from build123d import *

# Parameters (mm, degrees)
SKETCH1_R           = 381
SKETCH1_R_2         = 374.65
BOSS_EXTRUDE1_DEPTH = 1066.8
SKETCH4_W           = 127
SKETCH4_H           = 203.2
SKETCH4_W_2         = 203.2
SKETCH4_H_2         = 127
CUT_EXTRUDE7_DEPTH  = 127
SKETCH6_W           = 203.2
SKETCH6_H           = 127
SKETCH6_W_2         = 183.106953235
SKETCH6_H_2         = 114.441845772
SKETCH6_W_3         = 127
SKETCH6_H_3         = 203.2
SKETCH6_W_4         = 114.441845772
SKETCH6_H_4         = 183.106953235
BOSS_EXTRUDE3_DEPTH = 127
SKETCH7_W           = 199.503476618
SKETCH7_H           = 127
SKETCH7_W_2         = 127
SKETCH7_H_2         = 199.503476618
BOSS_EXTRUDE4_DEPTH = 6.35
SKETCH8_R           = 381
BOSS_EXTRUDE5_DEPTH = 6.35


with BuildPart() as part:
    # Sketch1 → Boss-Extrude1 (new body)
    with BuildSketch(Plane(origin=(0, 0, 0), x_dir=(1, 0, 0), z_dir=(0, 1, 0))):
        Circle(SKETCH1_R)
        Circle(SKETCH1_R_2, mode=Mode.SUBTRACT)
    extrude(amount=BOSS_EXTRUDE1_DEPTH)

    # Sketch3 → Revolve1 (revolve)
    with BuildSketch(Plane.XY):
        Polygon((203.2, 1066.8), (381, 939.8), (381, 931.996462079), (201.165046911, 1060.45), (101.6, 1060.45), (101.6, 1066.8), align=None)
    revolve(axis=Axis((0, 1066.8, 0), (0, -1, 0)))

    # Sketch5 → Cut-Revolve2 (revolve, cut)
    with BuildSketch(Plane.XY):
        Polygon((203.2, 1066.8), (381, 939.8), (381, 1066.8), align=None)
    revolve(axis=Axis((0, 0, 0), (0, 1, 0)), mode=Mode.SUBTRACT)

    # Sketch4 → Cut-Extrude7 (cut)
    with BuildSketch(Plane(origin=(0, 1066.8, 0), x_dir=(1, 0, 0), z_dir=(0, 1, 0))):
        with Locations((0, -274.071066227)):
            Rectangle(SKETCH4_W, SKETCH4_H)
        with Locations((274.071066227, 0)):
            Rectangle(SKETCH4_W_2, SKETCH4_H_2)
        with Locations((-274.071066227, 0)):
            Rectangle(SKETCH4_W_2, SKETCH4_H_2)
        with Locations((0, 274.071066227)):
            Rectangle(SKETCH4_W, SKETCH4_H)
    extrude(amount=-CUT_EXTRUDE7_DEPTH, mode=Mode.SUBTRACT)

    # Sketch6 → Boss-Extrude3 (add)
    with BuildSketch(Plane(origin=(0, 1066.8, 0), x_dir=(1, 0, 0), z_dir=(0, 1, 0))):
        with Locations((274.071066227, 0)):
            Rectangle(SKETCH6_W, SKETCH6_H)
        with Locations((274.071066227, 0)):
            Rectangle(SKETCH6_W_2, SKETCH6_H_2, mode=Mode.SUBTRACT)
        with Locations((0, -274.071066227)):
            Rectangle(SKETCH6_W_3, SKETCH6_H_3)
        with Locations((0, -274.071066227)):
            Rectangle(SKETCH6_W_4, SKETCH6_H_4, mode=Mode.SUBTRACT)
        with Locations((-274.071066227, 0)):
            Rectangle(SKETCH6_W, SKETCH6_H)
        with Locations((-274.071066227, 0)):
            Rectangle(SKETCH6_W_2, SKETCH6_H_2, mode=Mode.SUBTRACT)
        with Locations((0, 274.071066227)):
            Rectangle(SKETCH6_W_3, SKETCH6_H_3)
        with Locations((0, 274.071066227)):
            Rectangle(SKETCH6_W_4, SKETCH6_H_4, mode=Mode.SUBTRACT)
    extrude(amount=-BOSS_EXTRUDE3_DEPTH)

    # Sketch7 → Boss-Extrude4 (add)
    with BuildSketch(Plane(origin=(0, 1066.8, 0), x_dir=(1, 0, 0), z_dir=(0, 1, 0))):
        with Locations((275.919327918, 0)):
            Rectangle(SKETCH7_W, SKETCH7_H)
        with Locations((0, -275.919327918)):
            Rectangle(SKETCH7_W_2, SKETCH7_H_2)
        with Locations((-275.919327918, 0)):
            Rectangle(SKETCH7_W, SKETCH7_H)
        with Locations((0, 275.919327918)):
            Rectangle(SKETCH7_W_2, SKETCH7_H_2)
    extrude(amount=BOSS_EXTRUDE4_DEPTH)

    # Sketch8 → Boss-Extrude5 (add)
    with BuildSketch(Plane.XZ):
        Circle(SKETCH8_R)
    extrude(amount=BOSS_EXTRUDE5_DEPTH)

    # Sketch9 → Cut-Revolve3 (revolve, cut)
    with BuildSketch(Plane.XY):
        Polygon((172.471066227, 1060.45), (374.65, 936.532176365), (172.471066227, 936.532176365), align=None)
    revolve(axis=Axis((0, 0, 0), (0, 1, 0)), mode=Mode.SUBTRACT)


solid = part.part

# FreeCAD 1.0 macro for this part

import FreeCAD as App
import Part
import Sketcher

V = App.Vector
Q = App.Units.Quantity

doc = App.newDocument("Part")
body = doc.addObject("PartDesign::Body", "Body")

# Sketch on XZ plane
sketch1 = body.newObject("Sketcher::SketchObject", "Sketch")
sketch1.AttachmentSupport = (doc.getObject("XZ_Plane"), [""])
sketch1.MapMode = "FlatFace"
sketch1.addGeometry([
    Part.Circle(V(0, 0, 0), V(0, 0, 1), 381),
    Part.Circle(V(0, 0, 0), V(0, 0, 1), 374.65),
], False)
sketch1.addConstraint([
    Sketcher.Constraint("Coincident", 0, 3, -1, 1),
    Sketcher.Constraint("Coincident", 1, 3, -1, 1),
    Sketcher.Constraint("Diameter", 0, Q("30 in")),
    Sketcher.Constraint("Diameter", 1, Q("29.5 in")),
])
pad1 = body.newObject("PartDesign::Pad", "Pad")
pad1.Profile = sketch1
pad1.Length = Q("42 in")
pad1.Reversed = True

# Sketch on XY plane
sketch2 = body.newObject("Sketcher::SketchObject", "Sketch001")
sketch2.AttachmentSupport = (doc.getObject("XY_Plane"), [""])
sketch2.MapMode = "FlatFace"
sketch2.addGeometry([
    Part.LineSegment(V(381, 939.8, 0), V(203.2, 1066.8, 0)),  # 0
    Part.LineSegment(V(203.2, 1066.8, 0), V(101.6, 1066.8, 0)),  # 1
    Part.LineSegment(V(101.6, 1066.8, 0), V(101.6, 1060.45, 0)),  # 2
    Part.LineSegment(V(101.6, 1060.45, 0), V(201.165047, 1060.45, 0)),  # 3
    Part.LineSegment(V(201.165047, 1060.45, 0), V(381, 931.996462, 0)),  # 4
    Part.LineSegment(V(381, 931.996462, 0), V(381, 939.8, 0)),  # 5
], False)
sketch2.addConstraint([
    Sketcher.Constraint("Coincident", 0, 2, 1, 1),
    Sketcher.Constraint("Coincident", 1, 2, 2, 1),
    Sketcher.Constraint("Coincident", 2, 2, 3, 1),
    Sketcher.Constraint("Coincident", 3, 2, 4, 1),
    Sketcher.Constraint("Coincident", 4, 2, 5, 1),
    Sketcher.Constraint("Coincident", 5, 2, 0, 1),
    Sketcher.Constraint("Horizontal", 1),
    Sketcher.Constraint("Vertical", 2),
    Sketcher.Constraint("Horizontal", 3),
    Sketcher.Constraint("Vertical", 5),
    Sketcher.Constraint("Parallel", 0, 4),
    Sketcher.Constraint("DistanceX", 1, 2, 1, 1, Q("4 in")),
    Sketcher.Constraint("DistanceX", -1, 1, 0, 2, Q("8 in")),
    Sketcher.Constraint("DistanceY", -1, 1, 0, 2, Q("42 in")),
    Sketcher.Constraint("DistanceX", -1, 1, 4, 2, Q("15 in")),
    Sketcher.Constraint("DistanceY", -1, 1, 5, 2, Q("37 in")),
    Sketcher.Constraint("DistanceY", 2, 2, 2, 1, Q("0.25 in")),
    Sketcher.Constraint("DistanceX", 3, 1, 3, 2, 99.565047),
])
revolution = body.newObject("PartDesign::Revolution", "Revolution")
revolution.Profile = sketch2
revolution.ReferenceAxis = (sketch2, ["V_Axis"])
revolution.Angle = 360

# Sketch on XY plane
sketch3 = body.newObject("Sketcher::SketchObject", "Sketch002")
sketch3.AttachmentSupport = (doc.getObject("XY_Plane"), [""])
sketch3.MapMode = "FlatFace"
sketch3.addGeometry([
    Part.LineSegment(V(203.2, 1066.8, 0), V(381, 939.8, 0)),
    Part.LineSegment(V(381, 939.8, 0), V(381, 1066.8, 0)),
    Part.LineSegment(V(381, 1066.8, 0), V(203.2, 1066.8, 0)),
], False)
sketch3.addConstraint([
    Sketcher.Constraint("Coincident", 0, 2, 1, 1),
    Sketcher.Constraint("Coincident", 1, 2, 2, 1),
    Sketcher.Constraint("Coincident", 2, 2, 0, 1),
    Sketcher.Constraint("Vertical", 1),
    Sketcher.Constraint("Horizontal", 2),
    Sketcher.Constraint("DistanceX", 2, 2, 2, 1, Q("7 in")),
    Sketcher.Constraint("DistanceY", 1, 1, 1, 2, Q("5 in")),
    Sketcher.Constraint("DistanceX", -1, 1, 0, 2, Q("15 in")),
    Sketcher.Constraint("DistanceY", -1, 1, 0, 2, Q("37 in")),
])
groove = body.newObject("PartDesign::Groove", "Groove")
groove.Profile = sketch3
groove.ReferenceAxis = (sketch3, ["V_Axis"])
groove.Angle = 360

# Sketch on XZ plane
sketch4 = body.newObject("Sketcher::SketchObject", "Sketch003")
sketch4.AttachmentSupport = (doc.getObject("XZ_Plane"), [""])
sketch4.MapMode = "FlatFace"
sketch4.AttachmentOffset = App.Placement(V(0, 0, -42 * 25.4), App.Rotation())
sketch4.addGeometry([
    Part.LineSegment(V(-63.5, 172.471066, 0), V(-63.5, 375.671066, 0)),  # 0
    Part.LineSegment(V(-63.5, 375.671066, 0), V(63.5, 375.671066, 0)),  # 1
    Part.LineSegment(V(63.5, 375.671066, 0), V(63.5, 172.471066, 0)),  # 2
    Part.LineSegment(V(63.5, 172.471066, 0), V(-63.5, 172.471066, 0)),  # 3
    Part.LineSegment(V(172.471066, -63.5, 0), V(172.471066, 63.5, 0)),  # 4
    Part.LineSegment(V(172.471066, 63.5, 0), V(375.671066, 63.5, 0)),  # 5
    Part.LineSegment(V(375.671066, 63.5, 0), V(375.671066, -63.5, 0)),  # 6
    Part.LineSegment(V(375.671066, -63.5, 0), V(172.471066, -63.5, 0)),  # 7
    Part.LineSegment(V(-375.671066, -63.5, 0), V(-375.671066, 63.5, 0)),  # 8
    Part.LineSegment(V(-375.671066, 63.5, 0), V(-172.471066, 63.5, 0)),  # 9
    Part.LineSegment(V(-172.471066, 63.5, 0), V(-172.471066, -63.5, 0)),  # 10
    Part.LineSegment(V(-172.471066, -63.5, 0), V(-375.671066, -63.5, 0)),  # 11
    Part.LineSegment(V(-63.5, -375.671066, 0), V(-63.5, -172.471066, 0)),  # 12
    Part.LineSegment(V(-63.5, -172.471066, 0), V(63.5, -172.471066, 0)),  # 13
    Part.LineSegment(V(63.5, -172.471066, 0), V(63.5, -375.671066, 0)),  # 14
    Part.LineSegment(V(63.5, -375.671066, 0), V(-63.5, -375.671066, 0)),  # 15
], False)
sketch4.addConstraint([
    Sketcher.Constraint("Coincident", 0, 2, 1, 1),
    Sketcher.Constraint("Coincident", 1, 2, 2, 1),
    Sketcher.Constraint("Coincident", 2, 2, 3, 1),
    Sketcher.Constraint("Coincident", 3, 2, 0, 1),
    Sketcher.Constraint("Coincident", 4, 2, 5, 1),
    Sketcher.Constraint("Coincident", 5, 2, 6, 1),
    Sketcher.Constraint("Coincident", 6, 2, 7, 1),
    Sketcher.Constraint("Coincident", 7, 2, 4, 1),
    Sketcher.Constraint("Coincident", 8, 2, 9, 1),
    Sketcher.Constraint("Coincident", 9, 2, 10, 1),
    Sketcher.Constraint("Coincident", 10, 2, 11, 1),
    Sketcher.Constraint("Coincident", 11, 2, 8, 1),
    Sketcher.Constraint("Coincident", 12, 2, 13, 1),
    Sketcher.Constraint("Coincident", 13, 2, 14, 1),
    Sketcher.Constraint("Coincident", 14, 2, 15, 1),
    Sketcher.Constraint("Coincident", 15, 2, 12, 1),
    Sketcher.Constraint("Vertical", 0),
    Sketcher.Constraint("Horizontal", 1),
    Sketcher.Constraint("Vertical", 2),
    Sketcher.Constraint("Horizontal", 3),
    Sketcher.Constraint("Vertical", 4),
    Sketcher.Constraint("Horizontal", 5),
    Sketcher.Constraint("Vertical", 6),
    Sketcher.Constraint("Horizontal", 7),
    Sketcher.Constraint("Vertical", 8),
    Sketcher.Constraint("Horizontal", 9),
    Sketcher.Constraint("Vertical", 10),
    Sketcher.Constraint("Horizontal", 11),
    Sketcher.Constraint("Vertical", 12),
    Sketcher.Constraint("Horizontal", 13),
    Sketcher.Constraint("Vertical", 14),
    Sketcher.Constraint("Horizontal", 15),
    Sketcher.Constraint("Symmetric", 6, 2, 8, 2, -1, 1),
    Sketcher.Constraint("Symmetric", 4, 2, 10, 2, -1, 1),
    Sketcher.Constraint("Symmetric", 2, 2, 12, 2, -1, 1),
    Sketcher.Constraint("Symmetric", 0, 2, 14, 2, -1, 1),
    Sketcher.Constraint("Horizontal", 5, 2, 8, 2),
    Sketcher.Constraint("Vertical", 3, 2, 12, 2),
    Sketcher.Constraint("Equal", 11, 0),
    Sketcher.Constraint("Equal", 15, 4),
    Sketcher.Constraint("DistanceX", 1, 1, 1, 2, Q("5 in")),
    Sketcher.Constraint("DistanceX", 5, 1, 5, 2, Q("8 in")),
    Sketcher.Constraint("DistanceY", -1, 1, 0, 2, 375.671066),
    Sketcher.Constraint("DistanceX", -1, 1, 4, 2, 172.471066),
])
pocket1 = body.newObject("PartDesign::Pocket", "Pocket")
pocket1.Profile = sketch4
pocket1.Length = Q("5 in")
pocket1.Reversed = True

# Sketch on XZ plane
sketch5 = body.newObject("Sketcher::SketchObject", "Sketch004")
sketch5.AttachmentSupport = (doc.getObject("XZ_Plane"), [""])
sketch5.MapMode = "FlatFace"
sketch5.AttachmentOffset = App.Placement(V(0, 0, -42 * 25.4), App.Rotation())
sketch5.addGeometry([
    Part.LineSegment(V(172.471066, -63.5, 0), V(172.471066, 63.5, 0)),  # 0
    Part.LineSegment(V(172.471066, 63.5, 0), V(375.671066, 63.5, 0)),  # 1
    Part.LineSegment(V(375.671066, 63.5, 0), V(375.671066, -63.5, 0)),  # 2
    Part.LineSegment(V(375.671066, -63.5, 0), V(172.471066, -63.5, 0)),  # 3
    Part.LineSegment(V(365.624543, 57.220923, 0), V(182.51759, 57.220923, 0)),  # 4
    Part.LineSegment(V(182.51759, 57.220923, 0), V(182.51759, -57.220923, 0)),  # 5
    Part.LineSegment(V(182.51759, -57.220923, 0), V(365.624543, -57.220923, 0)),  # 6
    Part.LineSegment(V(365.624543, -57.220923, 0), V(365.624543, 57.220923, 0)),  # 7
    Part.LineSegment(V(-63.5, 172.471066, 0), V(-63.5, 375.671066, 0)),  # 8
    Part.LineSegment(V(-63.5, 375.671066, 0), V(63.5, 375.671066, 0)),  # 9
    Part.LineSegment(V(63.5, 375.671066, 0), V(63.5, 172.471066, 0)),  # 10
    Part.LineSegment(V(63.5, 172.471066, 0), V(-63.5, 172.471066, 0)),  # 11
    Part.LineSegment(V(57.220923, 365.624543, 0), V(-57.220923, 365.624543, 0)),  # 12
    Part.LineSegment(V(-57.220923, 365.624543, 0), V(-57.220923, 182.51759, 0)),  # 13
    Part.LineSegment(V(-57.220923, 182.51759, 0), V(57.220923, 182.51759, 0)),  # 14
    Part.LineSegment(V(57.220923, 182.51759, 0), V(57.220923, 365.624543, 0)),  # 15
    Part.LineSegment(V(-375.671066, -63.5, 0), V(-375.671066, 63.5, 0)),  # 16
    Part.LineSegment(V(-375.671066, 63.5, 0), V(-172.471066, 63.5, 0)),  # 17
    Part.LineSegment(V(-172.471066, 63.5, 0), V(-172.471066, -63.5, 0)),  # 18
    Part.LineSegment(V(-172.471066, -63.5, 0), V(-375.671066, -63.5, 0)),  # 19
    Part.LineSegment(V(-182.51759, 57.220923, 0), V(-365.624543, 57.220923, 0)),  # 20
    Part.LineSegment(V(-365.624543, 57.220923, 0), V(-365.624543, -57.220923, 0)),  # 21
    Part.LineSegment(V(-365.624543, -57.220923, 0), V(-182.51759, -57.220923, 0)),  # 22
    Part.LineSegment(V(-182.51759, -57.220923, 0), V(-182.51759, 57.220923, 0)),  # 23
    Part.LineSegment(V(-63.5, -375.671066, 0), V(-63.5, -172.471066, 0)),  # 24
    Part.LineSegment(V(-63.5, -172.471066, 0), V(63.5, -172.471066, 0)),  # 25
    Part.LineSegment(V(63.5, -172.471066, 0), V(63.5, -375.671066, 0)),  # 26
    Part.LineSegment(V(63.5, -375.671066, 0), V(-63.5, -375.671066, 0)),  # 27
    Part.LineSegment(V(57.220923, -182.51759, 0), V(-57.220923, -182.51759, 0)),  # 28
    Part.LineSegment(V(-57.220923, -182.51759, 0), V(-57.220923, -365.624543, 0)),  # 29
    Part.LineSegment(V(-57.220923, -365.624543, 0), V(57.220923, -365.624543, 0)),  # 30
    Part.LineSegment(V(57.220923, -365.624543, 0), V(57.220923, -182.51759, 0)),  # 31
], False)
sketch5.addConstraint([
    Sketcher.Constraint("Coincident", 0, 2, 1, 1),
    Sketcher.Constraint("Coincident", 1, 2, 2, 1),
    Sketcher.Constraint("Coincident", 2, 2, 3, 1),
    Sketcher.Constraint("Coincident", 3, 2, 0, 1),
    Sketcher.Constraint("Coincident", 4, 2, 5, 1),
    Sketcher.Constraint("Coincident", 5, 2, 6, 1),
    Sketcher.Constraint("Coincident", 6, 2, 7, 1),
    Sketcher.Constraint("Coincident", 7, 2, 4, 1),
    Sketcher.Constraint("Coincident", 8, 2, 9, 1),
    Sketcher.Constraint("Coincident", 9, 2, 10, 1),
    Sketcher.Constraint("Coincident", 10, 2, 11, 1),
    Sketcher.Constraint("Coincident", 11, 2, 8, 1),
    Sketcher.Constraint("Coincident", 12, 2, 13, 1),
    Sketcher.Constraint("Coincident", 13, 2, 14, 1),
    Sketcher.Constraint("Coincident", 14, 2, 15, 1),
    Sketcher.Constraint("Coincident", 15, 2, 12, 1),
    Sketcher.Constraint("Coincident", 16, 2, 17, 1),
    Sketcher.Constraint("Coincident", 17, 2, 18, 1),
    Sketcher.Constraint("Coincident", 18, 2, 19, 1),
    Sketcher.Constraint("Coincident", 19, 2, 16, 1),
    Sketcher.Constraint("Coincident", 20, 2, 21, 1),
    Sketcher.Constraint("Coincident", 21, 2, 22, 1),
    Sketcher.Constraint("Coincident", 22, 2, 23, 1),
    Sketcher.Constraint("Coincident", 23, 2, 20, 1),
    Sketcher.Constraint("Coincident", 24, 2, 25, 1),
    Sketcher.Constraint("Coincident", 25, 2, 26, 1),
    Sketcher.Constraint("Coincident", 26, 2, 27, 1),
    Sketcher.Constraint("Coincident", 27, 2, 24, 1),
    Sketcher.Constraint("Coincident", 28, 2, 29, 1),
    Sketcher.Constraint("Coincident", 29, 2, 30, 1),
    Sketcher.Constraint("Coincident", 30, 2, 31, 1),
    Sketcher.Constraint("Coincident", 31, 2, 28, 1),
    Sketcher.Constraint("Vertical", 0),
    Sketcher.Constraint("Horizontal", 1),
    Sketcher.Constraint("Vertical", 2),
    Sketcher.Constraint("Horizontal", 3),
    Sketcher.Constraint("Horizontal", 4),
    Sketcher.Constraint("Vertical", 5),
    Sketcher.Constraint("Horizontal", 6),
    Sketcher.Constraint("Vertical", 7),
    Sketcher.Constraint("Vertical", 8),
    Sketcher.Constraint("Horizontal", 9),
    Sketcher.Constraint("Vertical", 10),
    Sketcher.Constraint("Horizontal", 11),
    Sketcher.Constraint("Horizontal", 12),
    Sketcher.Constraint("Vertical", 13),
    Sketcher.Constraint("Horizontal", 14),
    Sketcher.Constraint("Vertical", 15),
    Sketcher.Constraint("Vertical", 16),
    Sketcher.Constraint("Horizontal", 17),
    Sketcher.Constraint("Vertical", 18),
    Sketcher.Constraint("Horizontal", 19),
    Sketcher.Constraint("Horizontal", 20),
    Sketcher.Constraint("Vertical", 21),
    Sketcher.Constraint("Horizontal", 22),
    Sketcher.Constraint("Vertical", 23),
    Sketcher.Constraint("Vertical", 24),
    Sketcher.Constraint("Horizontal", 25),
    Sketcher.Constraint("Vertical", 26),
    Sketcher.Constraint("Horizontal", 27),
    Sketcher.Constraint("Horizontal", 28),
    Sketcher.Constraint("Vertical", 29),
    Sketcher.Constraint("Horizontal", 30),
    Sketcher.Constraint("Vertical", 31),
    Sketcher.Constraint("Symmetric", 2, 2, 16, 2, -1, 1),
    Sketcher.Constraint("Symmetric", 0, 2, 18, 2, -1, 1),
    Sketcher.Constraint("Symmetric", 6, 2, 20, 2, -1, 1),
    Sketcher.Constraint("Symmetric", 4, 2, 22, 2, -1, 1),
    Sketcher.Constraint("Symmetric", 10, 2, 24, 2, -1, 1),
    Sketcher.Constraint("Symmetric", 8, 2, 26, 2, -1, 1),
    Sketcher.Constraint("Symmetric", 14, 2, 28, 2, -1, 1),
    Sketcher.Constraint("Symmetric", 12, 2, 30, 2, -1, 1),
    Sketcher.Constraint("Horizontal", 1, 2, 16, 2),
    Sketcher.Constraint("Horizontal", 7, 2, 20, 2),
    Sketcher.Constraint("Vertical", 11, 2, 24, 2),
    Sketcher.Constraint("Vertical", 13, 2, 28, 2),
    Sketcher.Constraint("Equal", 27, 0),
    Sketcher.Constraint("Equal", 30, 5),
    Sketcher.Constraint("Equal", 19, 8),
    Sketcher.Constraint("Equal", 22, 13),
    Sketcher.Constraint("DistanceX", 1, 1, 1, 2, Q("8 in")),
    Sketcher.Constraint("DistanceX", 9, 1, 9, 2, Q("5 in")),
    Sketcher.Constraint("DistanceX", 4, 2, 4, 1, 183.106953),
    Sketcher.Constraint("DistanceX", 12, 2, 12, 1, 114.441846),
    Sketcher.Constraint("DistanceX", -1, 1, 4, 2, 182.51759),
    Sketcher.Constraint("DistanceY", -1, 1, 13, 2, 182.51759),
    Sketcher.Constraint("DistanceY", 5, 2, 8, 2, 432.891989),
    Sketcher.Constraint("DistanceX", 12, 2, 0, 2, 229.691989),
])
pad2 = body.newObject("PartDesign::Pad", "Pad001")
pad2.Profile = sketch5
pad2.Length = Q("5 in")

# Sketch on XZ plane
sketch6 = body.newObject("Sketcher::SketchObject", "Sketch005")
sketch6.AttachmentSupport = (doc.getObject("XZ_Plane"), [""])
sketch6.MapMode = "FlatFace"
sketch6.AttachmentOffset = App.Placement(V(0, 0, -42 * 25.4), App.Rotation())
sketch6.addGeometry([
    Part.LineSegment(V(176.16759, -63.5, 0), V(176.16759, 63.5, 0)),  # 0
    Part.LineSegment(V(176.16759, 63.5, 0), V(375.671066, 63.5, 0)),  # 1
    Part.LineSegment(V(375.671066, 63.5, 0), V(375.671066, -63.5, 0)),  # 2
    Part.LineSegment(V(375.671066, -63.5, 0), V(176.16759, -63.5, 0)),  # 3
    Part.LineSegment(V(-63.5, 176.16759, 0), V(-63.5, 375.671066, 0)),  # 4
    Part.LineSegment(V(-63.5, 375.671066, 0), V(63.5, 375.671066, 0)),  # 5
    Part.LineSegment(V(63.5, 375.671066, 0), V(63.5, 176.16759, 0)),  # 6
    Part.LineSegment(V(63.5, 176.16759, 0), V(-63.5, 176.16759, 0)),  # 7
    Part.LineSegment(V(-375.671066, -63.5, 0), V(-375.671066, 63.5, 0)),  # 8
    Part.LineSegment(V(-375.671066, 63.5, 0), V(-176.16759, 63.5, 0)),  # 9
    Part.LineSegment(V(-176.16759, 63.5, 0), V(-176.16759, -63.5, 0)),  # 10
    Part.LineSegment(V(-176.16759, -63.5, 0), V(-375.671066, -63.5, 0)),  # 11
    Part.LineSegment(V(-63.5, -375.671066, 0), V(-63.5, -176.16759, 0)),  # 12
    Part.LineSegment(V(-63.5, -176.16759, 0), V(63.5, -176.16759, 0)),  # 13
    Part.LineSegment(V(63.5, -176.16759, 0), V(63.5, -375.671066, 0)),  # 14
    Part.LineSegment(V(63.5, -375.671066, 0), V(-63.5, -375.671066, 0)),  # 15
], False)
sketch6.addConstraint([
    Sketcher.Constraint("Coincident", 0, 2, 1, 1),
    Sketcher.Constraint("Coincident", 1, 2, 2, 1),
    Sketcher.Constraint("Coincident", 2, 2, 3, 1),
    Sketcher.Constraint("Coincident", 3, 2, 0, 1),
    Sketcher.Constraint("Coincident", 4, 2, 5, 1),
    Sketcher.Constraint("Coincident", 5, 2, 6, 1),
    Sketcher.Constraint("Coincident", 6, 2, 7, 1),
    Sketcher.Constraint("Coincident", 7, 2, 4, 1),
    Sketcher.Constraint("Coincident", 8, 2, 9, 1),
    Sketcher.Constraint("Coincident", 9, 2, 10, 1),
    Sketcher.Constraint("Coincident", 10, 2, 11, 1),
    Sketcher.Constraint("Coincident", 11, 2, 8, 1),
    Sketcher.Constraint("Coincident", 12, 2, 13, 1),
    Sketcher.Constraint("Coincident", 13, 2, 14, 1),
    Sketcher.Constraint("Coincident", 14, 2, 15, 1),
    Sketcher.Constraint("Coincident", 15, 2, 12, 1),
    Sketcher.Constraint("Vertical", 0),
    Sketcher.Constraint("Horizontal", 1),
    Sketcher.Constraint("Vertical", 2),
    Sketcher.Constraint("Horizontal", 3),
    Sketcher.Constraint("Vertical", 4),
    Sketcher.Constraint("Horizontal", 5),
    Sketcher.Constraint("Vertical", 6),
    Sketcher.Constraint("Horizontal", 7),
    Sketcher.Constraint("Vertical", 8),
    Sketcher.Constraint("Horizontal", 9),
    Sketcher.Constraint("Vertical", 10),
    Sketcher.Constraint("Horizontal", 11),
    Sketcher.Constraint("Vertical", 12),
    Sketcher.Constraint("Horizontal", 13),
    Sketcher.Constraint("Vertical", 14),
    Sketcher.Constraint("Horizontal", 15),
    Sketcher.Constraint("Symmetric", 2, 2, 8, 2, -1, 1),
    Sketcher.Constraint("Symmetric", 0, 2, 10, 2, -1, 1),
    Sketcher.Constraint("Symmetric", 6, 2, 12, 2, -1, 1),
    Sketcher.Constraint("Symmetric", 4, 2, 14, 2, -1, 1),
    Sketcher.Constraint("Horizontal", 1, 2, 8, 2),
    Sketcher.Constraint("Vertical", 7, 2, 12, 2),
    Sketcher.Constraint("Equal", 15, 0),
    Sketcher.Constraint("Equal", 11, 4),
    Sketcher.Constraint("DistanceX", 5, 1, 5, 2, Q("5 in")),
    Sketcher.Constraint("DistanceX", 1, 1, 1, 2, 199.503477),
    Sketcher.Constraint("DistanceX", -1, 1, 0, 2, 176.16759),
    Sketcher.Constraint("DistanceY", -1, 1, 6, 2, 176.16759),
])
pad3 = body.newObject("PartDesign::Pad", "Pad002")
pad3.Profile = sketch6
pad3.Length = Q("0.25 in")
pad3.Reversed = True

# Sketch on XZ plane
sketch7 = body.newObject("Sketcher::SketchObject", "Sketch006")
sketch7.AttachmentSupport = (doc.getObject("XZ_Plane"), [""])
sketch7.MapMode = "FlatFace"
sketch7.addGeometry(Part.Circle(V(0, 0, 0), V(0, 0, 1), 381), False)
sketch7.addConstraint([
    Sketcher.Constraint("Coincident", 0, 3, -1, 1),
    Sketcher.Constraint("Diameter", 0, Q("30 in")),
])
pad4 = body.newObject("PartDesign::Pad", "Pad003")
pad4.Profile = sketch7
pad4.Length = Q("0.25 in")

# Sketch on XY plane
sketch8 = body.newObject("Sketcher::SketchObject", "Sketch007")
sketch8.AttachmentSupport = (doc.getObject("XY_Plane"), [""])
sketch8.MapMode = "FlatFace"
sketch8.addGeometry([
    Part.LineSegment(V(374.65, 936.532176, 0), V(172.471066, 1060.45, 0)),
    Part.LineSegment(V(172.471066, 1060.45, 0), V(172.471066, 936.532176, 0)),
    Part.LineSegment(V(172.471066, 936.532176, 0), V(374.65, 936.532176, 0)),
], False)
sketch8.addConstraint([
    Sketcher.Constraint("Coincident", 0, 2, 1, 1),
    Sketcher.Constraint("Coincident", 1, 2, 2, 1),
    Sketcher.Constraint("Coincident", 2, 2, 0, 1),
    Sketcher.Constraint("Vertical", 1),
    Sketcher.Constraint("Horizontal", 2),
    Sketcher.Constraint("DistanceY", -1, 1, 0, 2, Q("41.75 in")),
    Sketcher.Constraint("DistanceX", -1, 1, 2, 2, Q("14.75 in")),
    Sketcher.Constraint("DistanceX", 2, 1, 2, 2, 202.178934),
    Sketcher.Constraint("DistanceY", 1, 2, 1, 1, 123.917824),
])
groove2 = body.newObject("PartDesign::Groove", "Groove001")
groove2.Profile = sketch8
groove2.ReferenceAxis = (sketch8, ["V_Axis"])
groove2.Angle = 360

doc.recompute()
